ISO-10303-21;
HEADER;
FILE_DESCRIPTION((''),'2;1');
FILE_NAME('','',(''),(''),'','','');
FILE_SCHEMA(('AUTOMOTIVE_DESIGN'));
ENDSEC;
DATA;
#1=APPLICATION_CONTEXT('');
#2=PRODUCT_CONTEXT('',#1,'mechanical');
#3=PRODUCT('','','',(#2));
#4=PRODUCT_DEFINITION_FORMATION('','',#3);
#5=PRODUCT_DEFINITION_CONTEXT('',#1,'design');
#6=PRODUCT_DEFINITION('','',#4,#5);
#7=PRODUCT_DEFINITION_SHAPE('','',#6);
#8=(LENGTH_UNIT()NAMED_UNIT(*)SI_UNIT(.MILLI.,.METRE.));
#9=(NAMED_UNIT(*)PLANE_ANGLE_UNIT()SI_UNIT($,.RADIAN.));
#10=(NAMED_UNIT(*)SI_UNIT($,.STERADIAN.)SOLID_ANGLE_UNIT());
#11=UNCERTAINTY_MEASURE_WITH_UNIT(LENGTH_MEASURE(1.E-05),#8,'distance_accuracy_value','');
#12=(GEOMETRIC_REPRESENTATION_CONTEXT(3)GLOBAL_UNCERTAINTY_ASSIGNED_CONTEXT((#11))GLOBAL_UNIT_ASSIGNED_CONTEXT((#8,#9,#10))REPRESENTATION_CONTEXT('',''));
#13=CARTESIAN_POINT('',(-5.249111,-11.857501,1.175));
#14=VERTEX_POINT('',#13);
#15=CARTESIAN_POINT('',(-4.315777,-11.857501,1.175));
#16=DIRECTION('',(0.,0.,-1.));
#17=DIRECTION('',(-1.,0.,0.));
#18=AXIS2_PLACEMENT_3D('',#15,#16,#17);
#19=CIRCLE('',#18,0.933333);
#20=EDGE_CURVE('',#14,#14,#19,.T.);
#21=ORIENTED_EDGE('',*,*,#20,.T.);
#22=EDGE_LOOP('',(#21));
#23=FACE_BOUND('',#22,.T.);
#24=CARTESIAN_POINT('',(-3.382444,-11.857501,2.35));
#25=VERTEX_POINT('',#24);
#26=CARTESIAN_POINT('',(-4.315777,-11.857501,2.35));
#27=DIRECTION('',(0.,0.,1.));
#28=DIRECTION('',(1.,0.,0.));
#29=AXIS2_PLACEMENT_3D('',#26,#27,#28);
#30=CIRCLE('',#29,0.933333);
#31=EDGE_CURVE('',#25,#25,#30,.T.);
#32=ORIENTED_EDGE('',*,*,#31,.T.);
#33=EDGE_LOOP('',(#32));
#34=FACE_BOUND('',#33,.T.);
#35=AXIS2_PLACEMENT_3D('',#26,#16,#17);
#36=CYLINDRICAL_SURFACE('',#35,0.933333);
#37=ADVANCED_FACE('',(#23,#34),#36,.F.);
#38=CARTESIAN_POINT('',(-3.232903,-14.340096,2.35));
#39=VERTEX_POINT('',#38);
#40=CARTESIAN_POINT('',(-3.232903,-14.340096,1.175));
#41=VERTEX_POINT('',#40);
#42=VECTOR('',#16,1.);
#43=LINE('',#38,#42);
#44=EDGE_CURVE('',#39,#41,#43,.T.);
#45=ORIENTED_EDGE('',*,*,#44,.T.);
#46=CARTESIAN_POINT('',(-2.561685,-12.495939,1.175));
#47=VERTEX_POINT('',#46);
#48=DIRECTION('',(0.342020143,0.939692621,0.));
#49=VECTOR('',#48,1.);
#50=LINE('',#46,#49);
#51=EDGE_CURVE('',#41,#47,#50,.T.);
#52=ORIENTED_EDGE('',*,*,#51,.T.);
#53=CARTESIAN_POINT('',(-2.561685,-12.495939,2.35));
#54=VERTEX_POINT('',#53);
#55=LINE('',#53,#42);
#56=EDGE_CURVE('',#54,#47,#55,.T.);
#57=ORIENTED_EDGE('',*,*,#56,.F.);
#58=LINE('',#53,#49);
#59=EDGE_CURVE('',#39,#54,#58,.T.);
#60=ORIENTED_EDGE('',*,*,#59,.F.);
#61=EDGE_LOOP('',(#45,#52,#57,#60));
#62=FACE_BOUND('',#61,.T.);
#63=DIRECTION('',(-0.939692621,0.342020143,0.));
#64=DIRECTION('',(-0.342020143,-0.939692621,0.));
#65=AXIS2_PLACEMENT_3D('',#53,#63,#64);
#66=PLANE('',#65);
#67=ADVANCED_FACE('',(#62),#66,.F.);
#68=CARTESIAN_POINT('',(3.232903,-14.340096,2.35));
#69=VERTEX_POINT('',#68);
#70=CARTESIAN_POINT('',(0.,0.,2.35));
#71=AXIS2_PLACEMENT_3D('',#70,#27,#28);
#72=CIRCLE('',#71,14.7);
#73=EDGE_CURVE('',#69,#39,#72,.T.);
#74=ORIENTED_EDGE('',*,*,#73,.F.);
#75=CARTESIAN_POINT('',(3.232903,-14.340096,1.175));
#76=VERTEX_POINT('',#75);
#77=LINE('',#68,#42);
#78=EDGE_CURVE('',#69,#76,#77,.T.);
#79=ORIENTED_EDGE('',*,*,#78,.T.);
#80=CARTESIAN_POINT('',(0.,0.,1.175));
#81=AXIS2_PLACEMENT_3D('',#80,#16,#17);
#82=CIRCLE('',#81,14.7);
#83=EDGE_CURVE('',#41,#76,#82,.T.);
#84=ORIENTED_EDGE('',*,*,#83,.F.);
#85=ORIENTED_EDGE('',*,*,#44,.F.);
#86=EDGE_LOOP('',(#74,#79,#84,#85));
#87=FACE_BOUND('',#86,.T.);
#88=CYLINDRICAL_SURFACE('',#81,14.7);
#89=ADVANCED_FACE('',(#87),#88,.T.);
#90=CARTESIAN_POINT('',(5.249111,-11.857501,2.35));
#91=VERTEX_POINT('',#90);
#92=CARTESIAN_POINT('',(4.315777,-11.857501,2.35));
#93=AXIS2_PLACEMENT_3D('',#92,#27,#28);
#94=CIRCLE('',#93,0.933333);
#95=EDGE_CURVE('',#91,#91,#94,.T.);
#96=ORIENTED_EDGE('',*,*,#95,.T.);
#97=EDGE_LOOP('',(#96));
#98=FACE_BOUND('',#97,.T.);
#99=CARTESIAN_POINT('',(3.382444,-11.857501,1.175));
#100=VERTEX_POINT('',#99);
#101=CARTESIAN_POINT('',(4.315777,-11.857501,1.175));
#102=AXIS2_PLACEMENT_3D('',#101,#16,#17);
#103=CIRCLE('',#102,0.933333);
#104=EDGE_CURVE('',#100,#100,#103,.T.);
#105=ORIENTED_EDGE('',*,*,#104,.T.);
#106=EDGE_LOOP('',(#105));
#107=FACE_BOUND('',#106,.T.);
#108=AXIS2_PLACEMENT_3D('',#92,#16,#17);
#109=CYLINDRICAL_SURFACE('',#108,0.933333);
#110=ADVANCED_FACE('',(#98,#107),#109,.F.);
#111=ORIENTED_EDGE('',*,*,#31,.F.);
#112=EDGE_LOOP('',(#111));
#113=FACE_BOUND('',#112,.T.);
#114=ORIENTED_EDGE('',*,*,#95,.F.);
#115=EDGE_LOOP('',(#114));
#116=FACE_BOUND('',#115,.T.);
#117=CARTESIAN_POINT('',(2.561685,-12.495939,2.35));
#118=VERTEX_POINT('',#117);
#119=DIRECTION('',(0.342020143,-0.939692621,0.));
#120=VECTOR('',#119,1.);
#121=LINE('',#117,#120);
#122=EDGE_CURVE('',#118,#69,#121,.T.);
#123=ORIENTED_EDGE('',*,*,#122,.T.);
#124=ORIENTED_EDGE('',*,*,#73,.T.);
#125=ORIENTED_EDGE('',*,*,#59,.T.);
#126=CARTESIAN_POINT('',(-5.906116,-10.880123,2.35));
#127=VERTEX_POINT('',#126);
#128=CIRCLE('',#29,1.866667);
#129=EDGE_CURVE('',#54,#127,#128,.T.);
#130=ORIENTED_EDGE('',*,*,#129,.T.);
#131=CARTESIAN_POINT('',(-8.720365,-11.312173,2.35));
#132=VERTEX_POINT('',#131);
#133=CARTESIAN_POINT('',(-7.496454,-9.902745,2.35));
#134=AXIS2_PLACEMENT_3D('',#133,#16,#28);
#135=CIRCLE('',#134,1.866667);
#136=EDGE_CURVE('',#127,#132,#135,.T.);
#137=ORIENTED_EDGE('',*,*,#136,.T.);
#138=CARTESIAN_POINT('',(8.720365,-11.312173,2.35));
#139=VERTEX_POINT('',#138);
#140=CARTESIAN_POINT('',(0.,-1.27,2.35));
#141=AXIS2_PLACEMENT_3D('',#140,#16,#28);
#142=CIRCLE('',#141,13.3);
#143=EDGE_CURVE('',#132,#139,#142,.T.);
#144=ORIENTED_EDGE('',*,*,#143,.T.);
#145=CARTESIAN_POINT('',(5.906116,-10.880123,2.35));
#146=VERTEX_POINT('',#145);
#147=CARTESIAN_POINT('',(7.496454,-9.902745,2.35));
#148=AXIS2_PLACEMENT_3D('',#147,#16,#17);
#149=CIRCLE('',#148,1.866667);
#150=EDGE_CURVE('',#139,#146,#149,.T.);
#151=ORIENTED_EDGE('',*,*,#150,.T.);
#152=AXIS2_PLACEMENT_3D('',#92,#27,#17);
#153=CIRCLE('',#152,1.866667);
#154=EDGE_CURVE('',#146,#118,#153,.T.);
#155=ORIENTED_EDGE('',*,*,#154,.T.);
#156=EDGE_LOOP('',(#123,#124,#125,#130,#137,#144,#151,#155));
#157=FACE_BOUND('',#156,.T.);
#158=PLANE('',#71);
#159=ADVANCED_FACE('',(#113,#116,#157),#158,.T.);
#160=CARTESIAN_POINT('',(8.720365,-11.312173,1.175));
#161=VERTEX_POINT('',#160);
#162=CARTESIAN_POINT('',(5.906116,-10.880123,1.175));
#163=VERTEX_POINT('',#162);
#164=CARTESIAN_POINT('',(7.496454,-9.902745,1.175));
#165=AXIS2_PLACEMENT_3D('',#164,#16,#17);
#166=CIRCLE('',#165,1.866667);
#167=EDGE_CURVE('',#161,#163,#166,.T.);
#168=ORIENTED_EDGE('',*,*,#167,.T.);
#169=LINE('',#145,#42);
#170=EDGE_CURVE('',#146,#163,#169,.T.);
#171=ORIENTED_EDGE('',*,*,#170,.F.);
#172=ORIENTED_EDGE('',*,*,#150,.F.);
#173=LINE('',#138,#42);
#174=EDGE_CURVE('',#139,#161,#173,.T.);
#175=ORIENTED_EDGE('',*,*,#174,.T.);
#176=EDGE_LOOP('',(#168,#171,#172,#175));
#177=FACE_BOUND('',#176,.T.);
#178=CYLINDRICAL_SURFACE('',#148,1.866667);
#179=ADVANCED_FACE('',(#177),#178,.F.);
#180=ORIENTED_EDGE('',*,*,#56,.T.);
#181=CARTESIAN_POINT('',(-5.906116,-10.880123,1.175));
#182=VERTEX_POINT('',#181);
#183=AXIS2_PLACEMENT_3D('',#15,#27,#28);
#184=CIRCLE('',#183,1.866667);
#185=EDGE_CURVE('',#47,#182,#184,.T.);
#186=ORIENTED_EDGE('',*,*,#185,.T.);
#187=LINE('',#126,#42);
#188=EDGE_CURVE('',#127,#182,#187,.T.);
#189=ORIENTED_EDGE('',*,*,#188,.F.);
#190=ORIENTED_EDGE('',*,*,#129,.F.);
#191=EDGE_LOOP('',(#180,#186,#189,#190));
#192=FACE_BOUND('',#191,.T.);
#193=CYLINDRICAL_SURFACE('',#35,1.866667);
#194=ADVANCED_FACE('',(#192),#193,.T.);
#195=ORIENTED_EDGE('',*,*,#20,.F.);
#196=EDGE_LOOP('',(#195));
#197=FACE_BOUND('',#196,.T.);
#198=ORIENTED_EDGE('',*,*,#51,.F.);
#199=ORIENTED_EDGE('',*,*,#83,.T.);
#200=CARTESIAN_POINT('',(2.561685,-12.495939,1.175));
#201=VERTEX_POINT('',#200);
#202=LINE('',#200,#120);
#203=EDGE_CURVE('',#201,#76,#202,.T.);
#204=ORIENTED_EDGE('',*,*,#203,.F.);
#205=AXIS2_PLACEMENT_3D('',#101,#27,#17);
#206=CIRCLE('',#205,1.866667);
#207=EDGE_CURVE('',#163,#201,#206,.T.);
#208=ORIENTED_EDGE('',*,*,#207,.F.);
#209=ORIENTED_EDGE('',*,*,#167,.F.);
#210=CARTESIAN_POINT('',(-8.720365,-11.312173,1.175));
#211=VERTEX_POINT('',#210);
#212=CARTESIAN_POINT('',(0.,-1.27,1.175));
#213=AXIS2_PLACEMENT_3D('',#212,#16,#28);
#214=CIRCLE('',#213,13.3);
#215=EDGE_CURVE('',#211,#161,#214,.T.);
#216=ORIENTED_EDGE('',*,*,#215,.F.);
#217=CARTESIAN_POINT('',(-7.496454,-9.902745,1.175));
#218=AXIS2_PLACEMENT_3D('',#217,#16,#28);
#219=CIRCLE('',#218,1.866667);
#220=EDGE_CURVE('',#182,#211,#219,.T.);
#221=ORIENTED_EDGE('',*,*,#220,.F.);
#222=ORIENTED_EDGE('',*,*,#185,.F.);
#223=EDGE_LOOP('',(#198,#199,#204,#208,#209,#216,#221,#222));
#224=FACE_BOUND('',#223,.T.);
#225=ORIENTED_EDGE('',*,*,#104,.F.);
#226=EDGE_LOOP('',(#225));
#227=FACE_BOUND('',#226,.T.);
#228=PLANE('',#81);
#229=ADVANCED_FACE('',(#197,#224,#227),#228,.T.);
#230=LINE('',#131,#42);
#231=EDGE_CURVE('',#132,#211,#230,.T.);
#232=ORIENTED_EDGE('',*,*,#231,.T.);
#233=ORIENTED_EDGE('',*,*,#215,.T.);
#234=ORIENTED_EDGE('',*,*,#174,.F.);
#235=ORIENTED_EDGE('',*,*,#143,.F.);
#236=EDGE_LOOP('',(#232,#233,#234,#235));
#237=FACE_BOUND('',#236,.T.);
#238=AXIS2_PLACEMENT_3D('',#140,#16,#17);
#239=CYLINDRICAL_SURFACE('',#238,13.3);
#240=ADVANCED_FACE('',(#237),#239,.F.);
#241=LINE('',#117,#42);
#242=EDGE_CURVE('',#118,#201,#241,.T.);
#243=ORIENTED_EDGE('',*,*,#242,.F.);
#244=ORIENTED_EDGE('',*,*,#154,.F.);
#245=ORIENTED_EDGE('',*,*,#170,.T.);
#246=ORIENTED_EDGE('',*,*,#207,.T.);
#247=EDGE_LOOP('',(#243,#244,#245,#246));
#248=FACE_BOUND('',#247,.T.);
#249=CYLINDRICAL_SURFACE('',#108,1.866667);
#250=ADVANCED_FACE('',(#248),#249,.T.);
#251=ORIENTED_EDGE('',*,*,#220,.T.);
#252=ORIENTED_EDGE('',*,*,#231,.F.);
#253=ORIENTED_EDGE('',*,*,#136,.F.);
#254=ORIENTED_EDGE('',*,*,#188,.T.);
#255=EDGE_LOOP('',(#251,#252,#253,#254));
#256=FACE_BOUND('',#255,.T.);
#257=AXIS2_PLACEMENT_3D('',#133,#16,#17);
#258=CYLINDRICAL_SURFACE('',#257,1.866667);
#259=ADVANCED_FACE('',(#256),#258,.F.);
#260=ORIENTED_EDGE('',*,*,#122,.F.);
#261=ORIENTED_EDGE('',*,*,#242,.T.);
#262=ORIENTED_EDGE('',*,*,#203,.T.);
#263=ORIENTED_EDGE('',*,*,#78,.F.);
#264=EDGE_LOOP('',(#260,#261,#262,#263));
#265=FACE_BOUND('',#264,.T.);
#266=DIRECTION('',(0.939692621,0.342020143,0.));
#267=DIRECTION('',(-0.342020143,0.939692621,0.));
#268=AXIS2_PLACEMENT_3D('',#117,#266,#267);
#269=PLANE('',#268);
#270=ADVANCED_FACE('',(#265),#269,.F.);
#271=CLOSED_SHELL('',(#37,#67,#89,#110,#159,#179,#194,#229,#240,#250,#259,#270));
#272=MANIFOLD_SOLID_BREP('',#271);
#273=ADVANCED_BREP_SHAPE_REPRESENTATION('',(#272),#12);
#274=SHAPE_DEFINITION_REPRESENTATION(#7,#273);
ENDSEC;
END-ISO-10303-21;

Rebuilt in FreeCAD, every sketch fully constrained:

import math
import FreeCAD as App
import Part
import Sketcher
Q = App.Units.Quantity

doc = App.newDocument("Part")
params = doc.addObject("Spreadsheet::Sheet", "Params")
for row, (alias, value) in enumerate([
    ("sketch1_diameter", "29.4 mm"),
    ("pad1_length", "1.175 mm"),
    ("sketch2_radius", "13.3 mm"),
    ("sketch2_radius2", "14.7 mm"),
    ("pad2_length", "1.175 mm"),
    ("sketch3_diameter", "29.4 mm"),
    ("pocket1_length", "1.175 mm"),
], start=1):
    params.set(f"A{row}", alias)
    params.set(f"B{row}", "=" + value)
    params.setAlias(f"B{row}", alias)

body = doc.addObject("PartDesign::Body", "Body")

sketch1 = body.newObject("Sketcher::SketchObject", "Sketch")
sketch1.AttachmentSupport = (doc.getObject("XY_Plane"), [""])
sketch1.MapMode = "FlatFace"
sketch1.addGeometry(Part.Circle(App.Vector(0, 0, 0), App.Vector(0, 0, 1), 15), False)
sketch1.addConstraint([
    Sketcher.Constraint("Coincident", 0, 3, -1, 1),
    Sketcher.Constraint("Diameter", 0, 29.4),
])
sketch1.setExpression("Constraints[1]", "Params.sketch1_diameter")
pad1 = body.newObject("PartDesign::Pad", "Pad")
pad1.Profile = sketch1
pad1.setExpression("Length", "Params.pad1_length")

sketch2 = body.newObject("Sketcher::SketchObject", "Sketch001")
sketch2.AttachmentSupport = (doc.getObject("XY_Plane"), [""])
sketch2.MapMode = "FlatFace"
sketch2.AttachmentOffset = App.Placement(App.Vector(0, 0, 1.175), App.Rotation())
sketch2.addGeometry([
    Part.LineSegment(App.Vector(-3.2, -14.3, 0), App.Vector(-2.6, -12.5, 0)),
    Part.ArcOfCircle(Part.Circle(App.Vector(-4.3, -11.9, 0), App.Vector(0, 0, 1), 1.9), math.radians(-20), math.radians(148)),
    Part.ArcOfCircle(Part.Circle(App.Vector(-7.5, -9.9, 0), App.Vector(0, 0, 1), 1.9), math.radians(-131), math.radians(-32)),
    Part.ArcOfCircle(Part.Circle(App.Vector(0, -1.3, 0), App.Vector(0, 0, 1), 13.3), math.radians(-49), math.radians(229)),
    Part.ArcOfCircle(Part.Circle(App.Vector(7.5, -9.9, 0), App.Vector(0, 0, 1), 1.9), math.radians(-148), math.radians(-49)),
    Part.ArcOfCircle(Part.Circle(App.Vector(4.3, -11.9, 0), App.Vector(0, 0, 1), 1.9), math.radians(32), math.radians(200)),
    Part.LineSegment(App.Vector(2.6, -12.5, 0), App.Vector(3.2, -14.3, 0)),
    Part.ArcOfCircle(Part.Circle(App.Vector(0, 0, 0), App.Vector(0, 0, 1), 14.7), math.radians(-77), math.radians(257)),
    Part.Circle(App.Vector(4.3, -11.9, 0), App.Vector(0, 0, 1), 0.9),
    Part.Circle(App.Vector(-4.3, -11.9, 0), App.Vector(0, 0, 1), 0.9),
], False)
sketch2.addConstraint([
    Sketcher.Constraint("Tangent", 0, 2, 1, 1),
    Sketcher.Constraint("Tangent", 1, 2, 2, 2),
    Sketcher.Constraint("Tangent", 2, 1, 3, 2),
    Sketcher.Constraint("Tangent", 3, 1, 4, 2),
    Sketcher.Constraint("Tangent", 4, 1, 5, 1),
    Sketcher.Constraint("Tangent", 5, 2, 6, 1),
    Sketcher.Constraint("Coincident", 6, 2, 7, 1),
    Sketcher.Constraint("Coincident", 7, 2, 0, 1),
    Sketcher.Constraint("Coincident", 7, 3, -1, 1),
    Sketcher.Constraint("Coincident", 8, 3, 5, 3),
    Sketcher.Constraint("Coincident", 9, 3, 1, 3),
    Sketcher.Constraint("Equal", 1, 2),
    Sketcher.Constraint("Equal", 2, 4),
    Sketcher.Constraint("Equal", 4, 5),
    Sketcher.Constraint("Equal", 8, 9),
    Sketcher.Constraint("Symmetric", 2, 3, 4, 3, -2),
    Sketcher.Constraint("Symmetric", 0, 2, 5, 2, -2),
    Sketcher.Constraint("Radius", 3, 13.3),
    Sketcher.Constraint("Radius", 7, 14.7),
    Sketcher.Constraint("Angle", 0, Q("70 deg")),
    Sketcher.Constraint("DistanceY", 3, 3, -1, 1, 1.27),
    Sketcher.Constraint("Diameter", 8, 1.866667),
    Sketcher.Constraint("Radius", 1, 1.866667),
    Sketcher.Constraint("DistanceY", 1, 3, -1, 1, 11.857501),
    Sketcher.Constraint("DistanceX", 0, 2, 4, 1, 8.4678),
])
sketch2.setExpression("Constraints[17]", "Params.sketch2_radius")
sketch2.setExpression("Constraints[18]", "Params.sketch2_radius2")
pad2 = body.newObject("PartDesign::Pad", "Pad001")
pad2.Profile = sketch2
pad2.setExpression("Length", "Params.pad2_length")

sketch3 = body.newObject("Sketcher::SketchObject", "Sketch002")
sketch3.AttachmentSupport = (doc.getObject("XY_Plane"), [""])
sketch3.MapMode = "FlatFace"
sketch3.addGeometry(Part.Circle(App.Vector(0, 0, 0), App.Vector(0, 0, 1), 15), False)
sketch3.addConstraint([
    Sketcher.Constraint("Coincident", 0, 3, -1, 1),
    Sketcher.Constraint("Diameter", 0, 29.4),
])
sketch3.setExpression("Constraints[1]", "Params.sketch3_diameter")
pocket1 = body.newObject("PartDesign::Pocket", "Pocket")
pocket1.Profile = sketch3
pocket1.setExpression("Length", "Params.pocket1_length")
pocket1.Reversed = True

doc.recompute()
